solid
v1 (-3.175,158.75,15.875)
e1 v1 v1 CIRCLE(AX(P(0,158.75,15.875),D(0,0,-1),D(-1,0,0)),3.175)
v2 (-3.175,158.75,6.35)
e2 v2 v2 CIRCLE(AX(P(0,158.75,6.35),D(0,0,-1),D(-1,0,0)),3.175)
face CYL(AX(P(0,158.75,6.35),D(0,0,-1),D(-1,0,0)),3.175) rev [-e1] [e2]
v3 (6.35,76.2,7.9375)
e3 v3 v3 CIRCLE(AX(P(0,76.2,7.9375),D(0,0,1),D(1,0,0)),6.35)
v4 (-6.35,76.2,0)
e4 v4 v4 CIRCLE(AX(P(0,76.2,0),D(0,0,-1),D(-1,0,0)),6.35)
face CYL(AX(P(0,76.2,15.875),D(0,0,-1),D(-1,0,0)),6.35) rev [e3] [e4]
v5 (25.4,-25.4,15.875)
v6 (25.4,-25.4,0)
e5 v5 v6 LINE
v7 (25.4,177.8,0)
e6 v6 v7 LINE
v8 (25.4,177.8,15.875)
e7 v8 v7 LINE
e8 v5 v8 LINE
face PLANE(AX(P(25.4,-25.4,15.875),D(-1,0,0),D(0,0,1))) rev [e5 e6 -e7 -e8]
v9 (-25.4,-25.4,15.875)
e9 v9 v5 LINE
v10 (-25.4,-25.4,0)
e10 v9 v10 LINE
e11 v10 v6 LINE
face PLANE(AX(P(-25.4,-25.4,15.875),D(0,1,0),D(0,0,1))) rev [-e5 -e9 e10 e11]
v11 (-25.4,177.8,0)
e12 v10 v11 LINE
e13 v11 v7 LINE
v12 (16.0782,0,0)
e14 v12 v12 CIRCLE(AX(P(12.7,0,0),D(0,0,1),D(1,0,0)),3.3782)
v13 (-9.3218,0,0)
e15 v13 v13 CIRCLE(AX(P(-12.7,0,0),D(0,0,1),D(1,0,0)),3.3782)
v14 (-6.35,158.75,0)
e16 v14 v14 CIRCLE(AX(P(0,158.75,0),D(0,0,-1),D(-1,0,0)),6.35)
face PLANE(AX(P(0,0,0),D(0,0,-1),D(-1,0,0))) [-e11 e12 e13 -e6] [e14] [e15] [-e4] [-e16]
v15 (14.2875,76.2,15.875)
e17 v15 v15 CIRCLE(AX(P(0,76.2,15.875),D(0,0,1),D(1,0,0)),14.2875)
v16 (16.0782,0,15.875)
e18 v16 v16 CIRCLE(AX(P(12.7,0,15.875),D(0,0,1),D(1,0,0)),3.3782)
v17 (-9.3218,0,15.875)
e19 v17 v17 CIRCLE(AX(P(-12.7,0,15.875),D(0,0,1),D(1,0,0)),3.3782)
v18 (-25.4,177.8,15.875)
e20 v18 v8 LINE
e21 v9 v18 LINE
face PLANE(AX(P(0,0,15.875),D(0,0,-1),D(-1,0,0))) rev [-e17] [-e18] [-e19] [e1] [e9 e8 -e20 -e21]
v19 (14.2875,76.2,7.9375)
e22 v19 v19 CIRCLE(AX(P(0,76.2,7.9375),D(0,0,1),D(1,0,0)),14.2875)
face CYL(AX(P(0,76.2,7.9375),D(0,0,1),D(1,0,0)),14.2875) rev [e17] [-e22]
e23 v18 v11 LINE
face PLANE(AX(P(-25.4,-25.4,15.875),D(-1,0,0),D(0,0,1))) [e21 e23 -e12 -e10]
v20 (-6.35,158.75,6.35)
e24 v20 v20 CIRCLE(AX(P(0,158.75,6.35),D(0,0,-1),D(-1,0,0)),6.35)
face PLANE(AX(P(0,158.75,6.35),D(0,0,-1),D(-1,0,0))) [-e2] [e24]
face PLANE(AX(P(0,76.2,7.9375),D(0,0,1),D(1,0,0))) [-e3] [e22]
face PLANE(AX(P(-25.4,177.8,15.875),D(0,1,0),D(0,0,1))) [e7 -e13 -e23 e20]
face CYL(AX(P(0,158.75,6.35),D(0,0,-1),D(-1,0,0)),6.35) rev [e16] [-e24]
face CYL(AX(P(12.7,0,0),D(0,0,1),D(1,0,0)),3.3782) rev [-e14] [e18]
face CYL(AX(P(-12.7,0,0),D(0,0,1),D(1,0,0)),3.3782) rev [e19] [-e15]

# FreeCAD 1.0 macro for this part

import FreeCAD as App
import Part
import Sketcher
from FreeCAD import Vector
Q = App.Units.Quantity

doc = App.newDocument("Part")
body = doc.addObject("PartDesign::Body", "Body")

# Sketch on XY plane
sketch1 = body.newObject("Sketcher::SketchObject", "Sketch")
sketch1.AttachmentSupport = (doc.getObject("XY_Plane"), [""])
sketch1.MapMode = "FlatFace"
sketch1.addGeometry([
    Part.LineSegment(Vector(-25.4, 177.8, 0), Vector(-25.4, -25.4, 0)),
    Part.LineSegment(Vector(-25.4, -25.4, 0), Vector(25.4, -25.4, 0)),
    Part.LineSegment(Vector(25.4, -25.4, 0), Vector(25.4, 177.8, 0)),
    Part.LineSegment(Vector(25.4, 177.8, 0), Vector(-25.4, 177.8, 0)),
], False)
sketch1.addConstraint([
    Sketcher.Constraint("Coincident", 0, 2, 1, 1),
    Sketcher.Constraint("Coincident", 1, 2, 2, 1),
    Sketcher.Constraint("Coincident", 2, 2, 3, 1),
    Sketcher.Constraint("Coincident", 3, 2, 0, 1),
    Sketcher.Constraint("Vertical", 0),
    Sketcher.Constraint("Horizontal", 1),
    Sketcher.Constraint("Vertical", 2),
    Sketcher.Constraint("Horizontal", 3),
    Sketcher.Constraint("DistanceX", 1, 1, 1, 2, Q("2 in")),
    Sketcher.Constraint("DistanceY", 0, 2, 0, 1, Q("8 in")),
    Sketcher.Constraint("DistanceX", 0, 2, -1, 1, Q("1 in")),
    Sketcher.Constraint("DistanceY", 0, 2, -1, 1, Q("1 in")),
])
pad1 = body.newObject("PartDesign::Pad", "Pad")
pad1.Profile = sketch1
pad1.Length = Q("0.625 in")

# Sketch on XY plane
sketch2 = body.newObject("Sketcher::SketchObject", "Sketch001")
sketch2.AttachmentSupport = (doc.getObject("XY_Plane"), [""])
sketch2.MapMode = "FlatFace"
sketch2.AttachmentOffset = App.Placement(Vector(0, 0, 0.625 * 25.4), App.Rotation())
sketch2.addGeometry([
    Part.Circle(Vector(-12.7, 0, 0), Vector(0, 0, 1), 3.3782),
    Part.Circle(Vector(12.7, 0, 0), Vector(0, 0, 1), 3.3782),
], False)
sketch2.addConstraint([
    Sketcher.Constraint("Equal", 0, 1),
    Sketcher.Constraint("Symmetric", 0, 3, 1, 3, -1, 1),
    Sketcher.Constraint("PointOnObject", 0, 3, -1),
    Sketcher.Constraint("Diameter", 0, Q("0.266 in")),
    Sketcher.Constraint("DistanceX", 0, 3, 1, 3, Q("1 in")),
])
pocket1 = body.newObject("PartDesign::Pocket", "Pocket")
pocket1.Profile = sketch2
pocket1.Type = "ThroughAll"

# Sketch on XY plane
sketch3 = body.newObject("Sketcher::SketchObject", "Sketch002")
sketch3.AttachmentSupport = (doc.getObject("XY_Plane"), [""])
sketch3.MapMode = "FlatFace"
sketch3.addGeometry(Part.Circle(Vector(0, 158.75, 0), Vector(0, 0, 1), 6.35), False)
sketch3.addConstraint([
    Sketcher.Constraint("PointOnObject", 0, 3, -2),
    Sketcher.Constraint("Diameter", 0, Q("0.5 in")),
    Sketcher.Constraint("DistanceY", -1, 1, 0, 3, Q("6.25 in")),
])
pocket2 = body.newObject("PartDesign::Pocket", "Pocket001")
pocket2.Profile = sketch3
pocket2.Length = Q("0.25 in")
pocket2.Reversed = True

# Sketch on XY plane
sketch4 = body.newObject("Sketcher::SketchObject", "Sketch003")
sketch4.AttachmentSupport = (doc.getObject("XY_Plane"), [""])
sketch4.MapMode = "FlatFace"
sketch4.AttachmentOffset = App.Placement(Vector(0, 0, 0.25 * 25.4), App.Rotation())
sketch4.addGeometry(Part.Circle(Vector(0, 158.75, 0), Vector(0, 0, 1), 3.175), False)
sketch4.addConstraint([
    Sketcher.Constraint("PointOnObject", 0, 3, -2),
    Sketcher.Constraint("Diameter", 0, Q("0.25 in")),
    Sketcher.Constraint("DistanceY", -1, 1, 0, 3, Q("6.25 in")),
])
doc.recompute()
hole = body.newObject("PartDesign::Hole", "Hole")
hole.Profile = sketch4
hole.ThreadType = "None"
hole.Diameter = Q("0.25 in")
hole.DepthType = "ThroughAll"
hole.Reversed = True

# Sketch on XY plane
sketch5 = body.newObject("Sketcher::SketchObject", "Sketch004")
sketch5.AttachmentSupport = (doc.getObject("XY_Plane"), [""])
sketch5.MapMode = "FlatFace"
sketch5.addGeometry(Part.Circle(Vector(0, 76.2, 0), Vector(0, 0, 1), 6.35), False)
sketch5.addConstraint([
    Sketcher.Constraint("PointOnObject", 0, 3, -2),
    Sketcher.Constraint("Diameter", 0, Q("0.5 in")),
    Sketcher.Constraint("DistanceY", -1, 1, 0, 3, Q("3 in")),
])
pocket3 = body.newObject("PartDesign::Pocket", "Pocket002")
pocket3.Profile = sketch5
pocket3.Type = "ThroughAll"
pocket3.Reversed = True

# Sketch on XY plane
sketch6 = body.newObject("Sketcher::SketchObject", "Sketch005")
sketch6.AttachmentSupport = (doc.getObject("XY_Plane"), [""])
sketch6.MapMode = "FlatFace"
sketch6.AttachmentOffset = App.Placement(Vector(0, 0, 0.625 * 25.4), App.Rotation())
sketch6.addGeometry([
    Part.Circle(Vector(0, 76.2, 0), Vector(0, 0, 1), 14.2875),
    Part.Circle(Vector(0, 76.2, 0), Vector(0, 0, 1), 6.35),
], False)
sketch6.addConstraint([
    Sketcher.Constraint("Coincident", 1, 3, 0, 3),
    Sketcher.Constraint("PointOnObject", 0, 3, -2),
    Sketcher.Constraint("Diameter", 1, Q("0.5 in")),
    Sketcher.Constraint("Diameter", 0, Q("1.125 in")),
    Sketcher.Constraint("DistanceY", -1, 1, 0, 3, Q("3 in")),
])
pocket4 = body.newObject("PartDesign::Pocket", "Pocket003")
pocket4.Profile = sketch6
pocket4.Length = Q("0.3125 in")

doc.recompute()
